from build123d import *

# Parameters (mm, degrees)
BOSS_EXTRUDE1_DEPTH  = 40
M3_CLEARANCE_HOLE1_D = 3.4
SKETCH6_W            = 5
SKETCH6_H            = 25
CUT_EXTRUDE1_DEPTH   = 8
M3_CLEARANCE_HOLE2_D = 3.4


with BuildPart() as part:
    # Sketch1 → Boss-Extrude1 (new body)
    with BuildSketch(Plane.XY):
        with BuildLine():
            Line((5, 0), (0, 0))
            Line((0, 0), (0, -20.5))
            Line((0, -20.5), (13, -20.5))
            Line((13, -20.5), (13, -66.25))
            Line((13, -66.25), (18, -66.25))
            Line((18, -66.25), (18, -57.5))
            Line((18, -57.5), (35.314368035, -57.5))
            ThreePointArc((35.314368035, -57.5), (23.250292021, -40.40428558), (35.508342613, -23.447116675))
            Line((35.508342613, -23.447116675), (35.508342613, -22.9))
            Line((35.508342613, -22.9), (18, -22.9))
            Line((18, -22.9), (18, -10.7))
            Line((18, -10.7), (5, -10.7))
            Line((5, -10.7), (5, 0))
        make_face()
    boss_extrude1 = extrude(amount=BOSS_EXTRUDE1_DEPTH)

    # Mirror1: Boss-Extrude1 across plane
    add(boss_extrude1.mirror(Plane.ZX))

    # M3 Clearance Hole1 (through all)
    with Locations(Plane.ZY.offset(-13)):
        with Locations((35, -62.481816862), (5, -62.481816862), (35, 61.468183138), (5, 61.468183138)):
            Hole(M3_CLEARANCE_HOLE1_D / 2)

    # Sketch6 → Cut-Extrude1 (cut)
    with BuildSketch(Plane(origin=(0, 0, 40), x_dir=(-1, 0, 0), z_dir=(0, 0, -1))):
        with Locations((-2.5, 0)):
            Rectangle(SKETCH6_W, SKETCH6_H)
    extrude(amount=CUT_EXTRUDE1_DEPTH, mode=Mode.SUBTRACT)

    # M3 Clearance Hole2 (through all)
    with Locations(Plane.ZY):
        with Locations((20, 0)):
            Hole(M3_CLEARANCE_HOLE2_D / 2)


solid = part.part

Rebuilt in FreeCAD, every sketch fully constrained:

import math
import FreeCAD as App
import Part
import Sketcher
Q = App.Units.Quantity

doc = App.newDocument("Part")
body = doc.addObject("PartDesign::Body", "Body")

# Sketch on XY plane
sketch1 = body.newObject("Sketcher::SketchObject", "Sketch")
sketch1.AttachmentSupport = (doc.getObject("XY_Plane"), [""])
sketch1.MapMode = "FlatFace"
sketch1.addGeometry([
    Part.LineSegment(App.Vector(5, 0, 0), App.Vector(0, 0, 0)),  # 0
    Part.LineSegment(App.Vector(0, 0, 0), App.Vector(0, -20.5, 0)),  # 1
    Part.LineSegment(App.Vector(0, -20.5, 0), App.Vector(13, -20.5, 0)),  # 2
    Part.LineSegment(App.Vector(13, -20.5, 0), App.Vector(13, -66.25, 0)),  # 3
    Part.LineSegment(App.Vector(13, -66.25, 0), App.Vector(18, -66.25, 0)),  # 4
    Part.LineSegment(App.Vector(18, -66.25, 0), App.Vector(18, -57.5, 0)),  # 5
    Part.LineSegment(App.Vector(18, -57.5, 0), App.Vector(35.314368, -57.5, 0)),  # 6
    Part.ArcOfCircle(Part.Circle(App.Vector(41.25, -40.506817, 0), App.Vector(0, 0, 1), 18), math.radians(108.601309), math.radians(250.745953)),  # 7
    Part.LineSegment(App.Vector(35.508343, -23.447117, 0), App.Vector(35.508343, -22.9, 0)),  # 8
    Part.LineSegment(App.Vector(35.508343, -22.9, 0), App.Vector(18, -22.9, 0)),  # 9
    Part.LineSegment(App.Vector(18, -22.9, 0), App.Vector(18, -10.7, 0)),  # 10
    Part.LineSegment(App.Vector(18, -10.7, 0), App.Vector(5, -10.7, 0)),  # 11
    Part.LineSegment(App.Vector(5, -10.7, 0), App.Vector(5, 0, 0)),  # 12
], False)
sketch1.addConstraint([
    Sketcher.Constraint("Coincident", 0, 2, 1, 1),
    Sketcher.Constraint("Coincident", 1, 2, 2, 1),
    Sketcher.Constraint("Coincident", 2, 2, 3, 1),
    Sketcher.Constraint("Coincident", 3, 2, 4, 1),
    Sketcher.Constraint("Coincident", 4, 2, 5, 1),
    Sketcher.Constraint("Coincident", 5, 2, 6, 1),
    Sketcher.Constraint("Coincident", 6, 2, 7, 2),
    Sketcher.Constraint("Coincident", 7, 1, 8, 1),
    Sketcher.Constraint("Coincident", 8, 2, 9, 1),
    Sketcher.Constraint("Coincident", 9, 2, 10, 1),
    Sketcher.Constraint("Coincident", 10, 2, 11, 1),
    Sketcher.Constraint("Coincident", 11, 2, 12, 1),
    Sketcher.Constraint("Coincident", 12, 2, 0, 1),
    Sketcher.Constraint("Horizontal", 0),
    Sketcher.Constraint("Vertical", 1),
    Sketcher.Constraint("Horizontal", 2),
    Sketcher.Constraint("Vertical", 3),
    Sketcher.Constraint("Horizontal", 4),
    Sketcher.Constraint("Vertical", 5),
    Sketcher.Constraint("Horizontal", 6),
    Sketcher.Constraint("Vertical", 8),
    Sketcher.Constraint("Horizontal", 9),
    Sketcher.Constraint("Vertical", 10),
    Sketcher.Constraint("Horizontal", 11),
    Sketcher.Constraint("Vertical", 12),
    Sketcher.Constraint("Coincident", 0, 2, -1, 1),
    Sketcher.Constraint("Vertical", 5, 2, 9, 2),
    Sketcher.Constraint("Equal", 0, 4),
    Sketcher.Constraint("Radius", 7, Q("18 mm")),
    Sketcher.Constraint("DistanceX", 0, 2, 0, 1, Q("5 mm")),
    Sketcher.Constraint("DistanceX", 2, 1, 2, 2, Q("13 mm")),
    Sketcher.Constraint("DistanceY", 1, 2, 1, 1, Q("20.5 mm")),
    Sketcher.Constraint("DistanceY", 10, 1, 10, 2, Q("12.2 mm")),
    Sketcher.Constraint("DistanceY", 12, 1, 12, 2, Q("10.7 mm")),
    Sketcher.Constraint("DistanceY", 5, 2, 2, 2, Q("37 mm")),
    Sketcher.Constraint("DistanceY", 3, 2, 3, 1, Q("45.75 mm")),
    Sketcher.Constraint("DistanceX", -1, 1, 7, 3, Q("41.25 mm")),
    Sketcher.Constraint("DistanceX", 6, 1, 6, 2, Q("17.314368 mm")),
    Sketcher.Constraint("DistanceY", 7, 3, 7, 1, Q("17.0597 mm")),
])
pad1 = body.newObject("PartDesign::Pad", "Pad")
pad1.Profile = sketch1
pad1.Length = 40
doc.recompute()

mirrored = body.newObject("PartDesign::Mirrored", "Mirrored")
mirrored.Originals = [pad1]
mirrored.MirrorPlane = (doc.getObject("XZ_Plane"), [""])
body.Tip = mirrored

# Sketch on YZ plane
sketch2 = body.newObject("Sketcher::SketchObject", "Sketch001")
sketch2.AttachmentSupport = (doc.getObject("YZ_Plane"), [""])
sketch2.MapMode = "FlatFace"
sketch2.AttachmentOffset = App.Placement(App.Vector(0, 0, 13), App.Rotation())
sketch2.addGeometry([
    Part.Circle(App.Vector(-62.481817, 35, 0), App.Vector(0, 0, 1), 1.7),
    Part.Circle(App.Vector(-62.481817, 5, 0), App.Vector(0, 0, 1), 1.7),
    Part.Circle(App.Vector(61.468183, 35, 0), App.Vector(0, 0, 1), 1.7),
    Part.Circle(App.Vector(61.468183, 5, 0), App.Vector(0, 0, 1), 1.7),
], False)
sketch2.addConstraint([
    Sketcher.Constraint("Equal", 0, 1),
    Sketcher.Constraint("Equal", 1, 2),
    Sketcher.Constraint("Equal", 2, 3),
    Sketcher.Constraint("Horizontal", 0, 3, 2, 3),
    Sketcher.Constraint("Horizontal", 1, 3, 3, 3),
    Sketcher.Constraint("Vertical", 0, 3, 1, 3),
    Sketcher.Constraint("Vertical", 2, 3, 3, 3),
    Sketcher.Constraint("Diameter", 0, Q("3.4 mm")),
    Sketcher.Constraint("DistanceY", -1, 1, 0, 3, Q("35 mm")),
    Sketcher.Constraint("DistanceY", -1, 1, 1, 3, Q("5 mm")),
    Sketcher.Constraint("DistanceX", 0, 3, 2, 3, Q("123.95 mm")),
    Sketcher.Constraint("DistanceX", 0, 3, -1, 1, Q("62.481817 mm")),
])
doc.recompute()
hole = body.newObject("PartDesign::Hole", "Hole")
hole.Profile = sketch2
hole.ThreadType = "None"
hole.Diameter = 3.4
hole.DepthType = "ThroughAll"
hole.Reversed = True

# Sketch on XY plane
sketch3 = body.newObject("Sketcher::SketchObject", "Sketch002")
sketch3.AttachmentSupport = (doc.getObject("XY_Plane"), [""])
sketch3.MapMode = "FlatFace"
sketch3.AttachmentOffset = App.Placement(App.Vector(0, 0, 40), App.Rotation())
sketch3.addGeometry([
    Part.LineSegment(App.Vector(5, 12.5, 0), App.Vector(5, -12.5, 0)),
    Part.LineSegment(App.Vector(5, -12.5, 0), App.Vector(0, -12.5, 0)),
    Part.LineSegment(App.Vector(0, -12.5, 0), App.Vector(0, 12.5, 0)),
    Part.LineSegment(App.Vector(0, 12.5, 0), App.Vector(5, 12.5, 0)),
], False)
sketch3.addConstraint([
    Sketcher.Constraint("Coincident", 0, 2, 1, 1),
    Sketcher.Constraint("Coincident", 1, 2, 2, 1),
    Sketcher.Constraint("Coincident", 2, 2, 3, 1),
    Sketcher.Constraint("Coincident", 3, 2, 0, 1),
    Sketcher.Constraint("Vertical", 0),
    Sketcher.Constraint("Horizontal", 1),
    Sketcher.Constraint("Vertical", 2),
    Sketcher.Constraint("Horizontal", 3),
    Sketcher.Constraint("Symmetric", 1, 2, 2, 2, -1, 1),
    Sketcher.Constraint("DistanceX", 1, 2, 1, 1, Q("5 mm")),
    Sketcher.Constraint("DistanceY", 0, 2, 0, 1, Q("25 mm")),
])
pocket1 = body.newObject("PartDesign::Pocket", "Pocket")
pocket1.Profile = sketch3
pocket1.Length = 8

# Sketch on YZ plane
sketch4 = body.newObject("Sketcher::SketchObject", "Sketch003")
sketch4.AttachmentSupport = (doc.getObject("YZ_Plane"), [""])
sketch4.MapMode = "FlatFace"
sketch4.addGeometry(Part.Circle(App.Vector(0, 20, 0), App.Vector(0, 0, 1), 1.7), False)
sketch4.addConstraint([
    Sketcher.Constraint("PointOnObject", 0, 3, -2),
    Sketcher.Constraint("Diameter", 0, Q("3.4 mm")),
    Sketcher.Constraint("DistanceY", -1, 1, 0, 3, Q("20 mm")),
])
doc.recompute()
hole2 = body.newObject("PartDesign::Hole", "Hole001")
hole2.Profile = sketch4
hole2.ThreadType = "None"
hole2.Diameter = 3.4
hole2.DepthType = "ThroughAll"
hole2.Reversed = True

doc.recompute()
